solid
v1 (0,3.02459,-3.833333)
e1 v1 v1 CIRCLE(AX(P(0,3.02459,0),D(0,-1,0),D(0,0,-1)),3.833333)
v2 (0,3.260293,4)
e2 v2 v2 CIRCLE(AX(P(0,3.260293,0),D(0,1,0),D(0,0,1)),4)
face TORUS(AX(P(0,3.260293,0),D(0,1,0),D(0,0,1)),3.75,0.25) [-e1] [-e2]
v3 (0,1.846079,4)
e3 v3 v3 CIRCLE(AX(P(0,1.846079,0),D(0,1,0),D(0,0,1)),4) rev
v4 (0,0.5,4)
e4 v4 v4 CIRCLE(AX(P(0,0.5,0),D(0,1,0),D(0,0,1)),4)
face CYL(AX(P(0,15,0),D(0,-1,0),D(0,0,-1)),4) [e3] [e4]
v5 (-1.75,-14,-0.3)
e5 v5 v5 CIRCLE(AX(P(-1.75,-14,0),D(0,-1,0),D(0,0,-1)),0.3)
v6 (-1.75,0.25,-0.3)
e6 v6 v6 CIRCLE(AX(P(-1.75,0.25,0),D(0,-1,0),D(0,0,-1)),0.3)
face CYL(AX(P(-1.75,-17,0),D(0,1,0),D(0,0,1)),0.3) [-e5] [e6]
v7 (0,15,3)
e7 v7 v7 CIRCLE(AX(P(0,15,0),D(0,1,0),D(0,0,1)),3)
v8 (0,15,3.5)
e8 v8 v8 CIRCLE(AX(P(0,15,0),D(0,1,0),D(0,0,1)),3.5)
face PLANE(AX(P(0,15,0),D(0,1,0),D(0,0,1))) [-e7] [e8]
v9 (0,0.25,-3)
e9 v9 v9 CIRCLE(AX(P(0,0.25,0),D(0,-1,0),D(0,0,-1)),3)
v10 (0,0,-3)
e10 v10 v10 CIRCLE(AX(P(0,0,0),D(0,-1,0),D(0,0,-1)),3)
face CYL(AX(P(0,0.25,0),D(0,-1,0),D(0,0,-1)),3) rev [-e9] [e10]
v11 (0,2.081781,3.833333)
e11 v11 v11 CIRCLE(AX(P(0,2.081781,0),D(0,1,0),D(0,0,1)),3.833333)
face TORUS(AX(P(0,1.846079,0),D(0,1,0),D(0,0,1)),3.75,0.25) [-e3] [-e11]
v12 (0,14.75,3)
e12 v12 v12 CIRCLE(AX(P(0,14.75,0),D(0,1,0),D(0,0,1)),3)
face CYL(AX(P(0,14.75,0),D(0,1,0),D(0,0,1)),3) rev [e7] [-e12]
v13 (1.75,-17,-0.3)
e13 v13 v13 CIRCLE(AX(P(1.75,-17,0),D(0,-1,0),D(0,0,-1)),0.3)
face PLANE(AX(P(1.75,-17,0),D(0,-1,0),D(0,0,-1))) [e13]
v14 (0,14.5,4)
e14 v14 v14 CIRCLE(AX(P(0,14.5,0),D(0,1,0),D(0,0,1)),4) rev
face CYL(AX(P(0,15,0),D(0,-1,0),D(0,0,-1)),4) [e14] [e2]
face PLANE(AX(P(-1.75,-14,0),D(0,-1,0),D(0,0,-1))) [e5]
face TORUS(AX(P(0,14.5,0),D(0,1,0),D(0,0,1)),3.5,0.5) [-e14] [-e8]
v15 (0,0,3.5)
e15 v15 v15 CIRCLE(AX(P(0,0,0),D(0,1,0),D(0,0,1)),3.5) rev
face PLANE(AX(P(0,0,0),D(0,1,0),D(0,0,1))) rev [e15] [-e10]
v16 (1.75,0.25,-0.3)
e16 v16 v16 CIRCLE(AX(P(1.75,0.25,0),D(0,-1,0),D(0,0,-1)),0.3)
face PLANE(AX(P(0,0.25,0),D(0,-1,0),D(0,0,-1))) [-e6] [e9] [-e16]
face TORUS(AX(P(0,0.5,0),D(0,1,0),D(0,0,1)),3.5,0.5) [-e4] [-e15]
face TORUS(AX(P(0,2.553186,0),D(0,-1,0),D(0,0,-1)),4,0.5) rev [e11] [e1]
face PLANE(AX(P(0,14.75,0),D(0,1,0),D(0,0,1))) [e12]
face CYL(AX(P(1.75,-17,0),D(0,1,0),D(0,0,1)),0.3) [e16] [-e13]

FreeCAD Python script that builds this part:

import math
import FreeCAD as App
import Part
import Sketcher
Q = App.Units.Quantity


def edges_at(feature, points):
    """Names of the edges that pass closest to the given points."""
    edges = feature.Shape.Edges
    near = lambda p: min(range(len(edges)), key=lambda i: edges[i].distToShape(Part.Vertex(*p))[0])
    return sorted({f"Edge{near(p) + 1}" for p in points})

doc = App.newDocument("Part")
body = doc.addObject("PartDesign::Body", "Body")

sketch1 = body.newObject("Sketcher::SketchObject", "Sketch")
sketch1.AttachmentSupport = (doc.getObject("XZ_Plane"), [""])
sketch1.MapMode = "FlatFace"
sketch1.addGeometry(Part.Circle(App.Vector(0, 0, 0), App.Vector(0, 0, 1), 4), False)
sketch1.addConstraint(Sketcher.Constraint("Coincident", 0, 3, -1, 1))
sketch1.addConstraint(Sketcher.Constraint("Diameter", 0, Q("8 mm")))
pad1 = body.newObject("PartDesign::Pad", "Pad")
pad1.Profile = sketch1
pad1.Length = 15
pad1.Reversed = True

sketch2 = body.newObject("Sketcher::SketchObject", "Sketch001")
sketch2.AttachmentSupport = (doc.getObject("YZ_Plane"), [""])
sketch2.MapMode = "FlatFace"
sketch2.addGeometry(Part.LineSegment(App.Vector(3.1, 4, 0), App.Vector(2.1, 4, 0)), False)
sketch2.addGeometry(Part.ArcOfCircle(Part.Circle(App.Vector(2.6, 4, 0), App.Vector(0, 0, 1), 0.5), math.radians(180), math.radians(360)), False)
sketch2.addConstraint(Sketcher.Constraint("Coincident", 0, 1, 1, 2))
sketch2.addConstraint(Sketcher.Constraint("Coincident", 1, 1, 0, 2))
sketch2.addConstraint(Sketcher.Constraint("Horizontal", 0))
sketch2.addConstraint(Sketcher.Constraint("Horizontal", 1, 3, 0, 1))
sketch2.addConstraint(Sketcher.Constraint("Radius", 1, Q("0.5 mm")))
sketch2.addConstraint(Sketcher.Constraint("DistanceY", -1, 1, 1, 3, Q("4 mm")))
sketch2.addConstraint(Sketcher.Constraint("DistanceX", -1, 1, 1, 3, Q("2.553186 mm")))
groove = body.newObject("PartDesign::Groove", "Groove")
groove.Profile = sketch2
groove.ReferenceAxis = (sketch2, ["H_Axis"])
groove.Angle = 360
doc.recompute()

fillet = body.newObject("PartDesign::Fillet", "Fillet")
fillet.Base = (groove, edges_at(groove, [(0, 0, -4), (0, 15, -4)]))
fillet.Radius = 0.5
doc.recompute()

fillet2 = body.newObject("PartDesign::Fillet", "Fillet001")
fillet2.Base = (fillet, edges_at(fillet, [(-4, 2.053, 0), (-4, 3.053, 0)]))
fillet2.Radius = 0.25

sketch3 = body.newObject("Sketcher::SketchObject", "Sketch002")
sketch3.AttachmentSupport = (doc.getObject("XZ_Plane"), [""])
sketch3.MapMode = "FlatFace"
sketch3.addGeometry(Part.Circle(App.Vector(0, 0, 0), App.Vector(0, 0, 1), 3), False)
sketch3.addConstraint(Sketcher.Constraint("Coincident", 0, 3, -1, 1))
sketch3.addConstraint(Sketcher.Constraint("Diameter", 0, Q("6 mm")))
pocket1 = body.newObject("PartDesign::Pocket", "Pocket")
pocket1.Profile = sketch3
pocket1.Length = 0.25

sketch4 = body.newObject("Sketcher::SketchObject", "Sketch003")
sketch4.AttachmentSupport = (doc.getObject("XZ_Plane"), [""])
sketch4.MapMode = "FlatFace"
sketch4.AttachmentOffset = App.Placement(App.Vector(0, 0, -0.25), App.Rotation())
sketch4.addGeometry(Part.Circle(App.Vector(-1.75, 0, 0), App.Vector(0, 0, 1), 0.3), False)
sketch4.addGeometry(Part.Circle(App.Vector(1.75, 0, 0), App.Vector(0, 0, 1), 0.3), False)
sketch4.addConstraint(Sketcher.Constraint("Equal", 0, 1))
sketch4.addConstraint(Sketcher.Constraint("Symmetric", 0, 3, 1, 3, -1, 1))
sketch4.addConstraint(Sketcher.Constraint("PointOnObject", 0, 3, -1))
sketch4.addConstraint(Sketcher.Constraint("Diameter", 0, Q("0.6 mm")))
sketch4.addConstraint(Sketcher.Constraint("DistanceX", 0, 3, 1, 3, Q("3.5 mm")))
pad2 = body.newObject("PartDesign::Pad", "Pad001")
pad2.Profile = sketch4
pad2.Length = 17.25

sketch5 = body.newObject("Sketcher::SketchObject", "Sketch004")
sketch5.AttachmentSupport = (doc.getObject("XZ_Plane"), [""])
sketch5.MapMode = "FlatFace"
sketch5.AttachmentOffset = App.Placement(App.Vector(0, 0, 17), App.Rotation())
sketch5.addGeometry(Part.Circle(App.Vector(-1.75, 0, 0), App.Vector(0, 0, 1), 0.3), False)
sketch5.addConstraint(Sketcher.Constraint("PointOnObject", 0, 3, -1))
sketch5.addConstraint(Sketcher.Constraint("Diameter", 0, Q("0.6 mm")))
sketch5.addConstraint(Sketcher.Constraint("DistanceX", 0, 3, -1, 1, Q("1.75 mm")))
pocket2 = body.newObject("PartDesign::Pocket", "Pocket001")
pocket2.Profile = sketch5
pocket2.Length = 3

sketch6 = body.newObject("Sketcher::SketchObject", "Sketch005")
sketch6.AttachmentSupport = (doc.getObject("XZ_Plane"), [""])
sketch6.MapMode = "FlatFace"
sketch6.AttachmentOffset = App.Placement(App.Vector(0, 0, -15), App.Rotation())
sketch6.addGeometry(Part.Circle(App.Vector(0, 0, 0), App.Vector(0, 0, 1), 3), False)
sketch6.addConstraint(Sketcher.Constraint("Coincident", 0, 3, -1, 1))
sketch6.addConstraint(Sketcher.Constraint("Diameter", 0, Q("6 mm")))
pocket3 = body.newObject("PartDesign::Pocket", "Pocket002")
pocket3.Profile = sketch6
pocket3.Length = 0.25
pocket3.Reversed = True

doc.recompute()
